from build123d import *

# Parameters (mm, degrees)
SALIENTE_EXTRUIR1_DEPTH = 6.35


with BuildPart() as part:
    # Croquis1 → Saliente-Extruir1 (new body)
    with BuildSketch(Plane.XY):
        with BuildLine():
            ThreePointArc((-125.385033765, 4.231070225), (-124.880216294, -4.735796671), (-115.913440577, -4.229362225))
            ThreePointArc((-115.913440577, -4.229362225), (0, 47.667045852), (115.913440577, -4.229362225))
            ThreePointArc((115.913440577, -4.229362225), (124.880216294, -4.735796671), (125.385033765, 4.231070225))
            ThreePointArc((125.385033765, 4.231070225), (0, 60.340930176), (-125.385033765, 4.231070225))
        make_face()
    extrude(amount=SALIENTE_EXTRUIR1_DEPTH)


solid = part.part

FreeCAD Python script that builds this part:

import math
import FreeCAD as App
import Part
import Sketcher
from FreeCAD import Vector
Q = App.Units.Quantity

doc = App.newDocument("Part")
body = doc.addObject("PartDesign::Body", "Body")

sketch1 = doc.addObject("Sketcher::SketchObject", "Sketch")
body.addObject(sketch1)
sketch1.AttachmentSupport = (doc.XY_Plane, [""])
sketch1.MapMode = "FlatFace"
sketch1.addGeometry(Part.ArcOfCircle(Part.Circle(Vector(-120.65, 0, 0), Vector(0, 0, 1), 6.35), math.radians(138.217075), math.radians(318.23774)), False)
sketch1.addGeometry(Part.ArcOfCircle(Part.Circle(Vector(0, -107.730635, 0), Vector(0, 0, 1), 155.39768), math.radians(41.76226), math.radians(138.23774)), False)
sketch1.addGeometry(Part.ArcOfCircle(Part.Circle(Vector(120.65, 0, 0), Vector(0, 0, 1), 6.35), math.radians(-138.23774), math.radians(41.782925)), False)
sketch1.addGeometry(Part.ArcOfCircle(Part.Circle(Vector(0, -107.808866, 0), Vector(0, 0, 1), 168.149797), math.radians(41.782925), math.radians(138.217075)), False)
sketch1.addConstraint(Sketcher.Constraint("Tangent", 0, 2, 1, 2))
sketch1.addConstraint(Sketcher.Constraint("Tangent", 1, 1, 2, 1))
sketch1.addConstraint(Sketcher.Constraint("Tangent", 2, 2, 3, 1))
sketch1.addConstraint(Sketcher.Constraint("Tangent", 3, 2, 0, 1))
sketch1.addConstraint(Sketcher.Constraint("Equal", 0, 2))
sketch1.addConstraint(Sketcher.Constraint("Symmetric", 0, 3, 2, 3, -1, 1))
sketch1.addConstraint(Sketcher.Constraint("PointOnObject", 0, 3, -1))
sketch1.addConstraint(Sketcher.Constraint("Radius", 0, Q("0.25 in")))
sketch1.addConstraint(Sketcher.Constraint("DistanceX", 0, 3, 2, 3, Q("9.5 in")))
sketch1.addConstraint(Sketcher.Constraint("Radius", 1, 155.39768))
sketch1.addConstraint(Sketcher.Constraint("Radius", 3, 168.149797))
pad1 = doc.addObject("PartDesign::Pad", "Pad")
body.addObject(pad1)
pad1.Profile = sketch1
pad1.Length = Q("0.25 in")

doc.recompute()
